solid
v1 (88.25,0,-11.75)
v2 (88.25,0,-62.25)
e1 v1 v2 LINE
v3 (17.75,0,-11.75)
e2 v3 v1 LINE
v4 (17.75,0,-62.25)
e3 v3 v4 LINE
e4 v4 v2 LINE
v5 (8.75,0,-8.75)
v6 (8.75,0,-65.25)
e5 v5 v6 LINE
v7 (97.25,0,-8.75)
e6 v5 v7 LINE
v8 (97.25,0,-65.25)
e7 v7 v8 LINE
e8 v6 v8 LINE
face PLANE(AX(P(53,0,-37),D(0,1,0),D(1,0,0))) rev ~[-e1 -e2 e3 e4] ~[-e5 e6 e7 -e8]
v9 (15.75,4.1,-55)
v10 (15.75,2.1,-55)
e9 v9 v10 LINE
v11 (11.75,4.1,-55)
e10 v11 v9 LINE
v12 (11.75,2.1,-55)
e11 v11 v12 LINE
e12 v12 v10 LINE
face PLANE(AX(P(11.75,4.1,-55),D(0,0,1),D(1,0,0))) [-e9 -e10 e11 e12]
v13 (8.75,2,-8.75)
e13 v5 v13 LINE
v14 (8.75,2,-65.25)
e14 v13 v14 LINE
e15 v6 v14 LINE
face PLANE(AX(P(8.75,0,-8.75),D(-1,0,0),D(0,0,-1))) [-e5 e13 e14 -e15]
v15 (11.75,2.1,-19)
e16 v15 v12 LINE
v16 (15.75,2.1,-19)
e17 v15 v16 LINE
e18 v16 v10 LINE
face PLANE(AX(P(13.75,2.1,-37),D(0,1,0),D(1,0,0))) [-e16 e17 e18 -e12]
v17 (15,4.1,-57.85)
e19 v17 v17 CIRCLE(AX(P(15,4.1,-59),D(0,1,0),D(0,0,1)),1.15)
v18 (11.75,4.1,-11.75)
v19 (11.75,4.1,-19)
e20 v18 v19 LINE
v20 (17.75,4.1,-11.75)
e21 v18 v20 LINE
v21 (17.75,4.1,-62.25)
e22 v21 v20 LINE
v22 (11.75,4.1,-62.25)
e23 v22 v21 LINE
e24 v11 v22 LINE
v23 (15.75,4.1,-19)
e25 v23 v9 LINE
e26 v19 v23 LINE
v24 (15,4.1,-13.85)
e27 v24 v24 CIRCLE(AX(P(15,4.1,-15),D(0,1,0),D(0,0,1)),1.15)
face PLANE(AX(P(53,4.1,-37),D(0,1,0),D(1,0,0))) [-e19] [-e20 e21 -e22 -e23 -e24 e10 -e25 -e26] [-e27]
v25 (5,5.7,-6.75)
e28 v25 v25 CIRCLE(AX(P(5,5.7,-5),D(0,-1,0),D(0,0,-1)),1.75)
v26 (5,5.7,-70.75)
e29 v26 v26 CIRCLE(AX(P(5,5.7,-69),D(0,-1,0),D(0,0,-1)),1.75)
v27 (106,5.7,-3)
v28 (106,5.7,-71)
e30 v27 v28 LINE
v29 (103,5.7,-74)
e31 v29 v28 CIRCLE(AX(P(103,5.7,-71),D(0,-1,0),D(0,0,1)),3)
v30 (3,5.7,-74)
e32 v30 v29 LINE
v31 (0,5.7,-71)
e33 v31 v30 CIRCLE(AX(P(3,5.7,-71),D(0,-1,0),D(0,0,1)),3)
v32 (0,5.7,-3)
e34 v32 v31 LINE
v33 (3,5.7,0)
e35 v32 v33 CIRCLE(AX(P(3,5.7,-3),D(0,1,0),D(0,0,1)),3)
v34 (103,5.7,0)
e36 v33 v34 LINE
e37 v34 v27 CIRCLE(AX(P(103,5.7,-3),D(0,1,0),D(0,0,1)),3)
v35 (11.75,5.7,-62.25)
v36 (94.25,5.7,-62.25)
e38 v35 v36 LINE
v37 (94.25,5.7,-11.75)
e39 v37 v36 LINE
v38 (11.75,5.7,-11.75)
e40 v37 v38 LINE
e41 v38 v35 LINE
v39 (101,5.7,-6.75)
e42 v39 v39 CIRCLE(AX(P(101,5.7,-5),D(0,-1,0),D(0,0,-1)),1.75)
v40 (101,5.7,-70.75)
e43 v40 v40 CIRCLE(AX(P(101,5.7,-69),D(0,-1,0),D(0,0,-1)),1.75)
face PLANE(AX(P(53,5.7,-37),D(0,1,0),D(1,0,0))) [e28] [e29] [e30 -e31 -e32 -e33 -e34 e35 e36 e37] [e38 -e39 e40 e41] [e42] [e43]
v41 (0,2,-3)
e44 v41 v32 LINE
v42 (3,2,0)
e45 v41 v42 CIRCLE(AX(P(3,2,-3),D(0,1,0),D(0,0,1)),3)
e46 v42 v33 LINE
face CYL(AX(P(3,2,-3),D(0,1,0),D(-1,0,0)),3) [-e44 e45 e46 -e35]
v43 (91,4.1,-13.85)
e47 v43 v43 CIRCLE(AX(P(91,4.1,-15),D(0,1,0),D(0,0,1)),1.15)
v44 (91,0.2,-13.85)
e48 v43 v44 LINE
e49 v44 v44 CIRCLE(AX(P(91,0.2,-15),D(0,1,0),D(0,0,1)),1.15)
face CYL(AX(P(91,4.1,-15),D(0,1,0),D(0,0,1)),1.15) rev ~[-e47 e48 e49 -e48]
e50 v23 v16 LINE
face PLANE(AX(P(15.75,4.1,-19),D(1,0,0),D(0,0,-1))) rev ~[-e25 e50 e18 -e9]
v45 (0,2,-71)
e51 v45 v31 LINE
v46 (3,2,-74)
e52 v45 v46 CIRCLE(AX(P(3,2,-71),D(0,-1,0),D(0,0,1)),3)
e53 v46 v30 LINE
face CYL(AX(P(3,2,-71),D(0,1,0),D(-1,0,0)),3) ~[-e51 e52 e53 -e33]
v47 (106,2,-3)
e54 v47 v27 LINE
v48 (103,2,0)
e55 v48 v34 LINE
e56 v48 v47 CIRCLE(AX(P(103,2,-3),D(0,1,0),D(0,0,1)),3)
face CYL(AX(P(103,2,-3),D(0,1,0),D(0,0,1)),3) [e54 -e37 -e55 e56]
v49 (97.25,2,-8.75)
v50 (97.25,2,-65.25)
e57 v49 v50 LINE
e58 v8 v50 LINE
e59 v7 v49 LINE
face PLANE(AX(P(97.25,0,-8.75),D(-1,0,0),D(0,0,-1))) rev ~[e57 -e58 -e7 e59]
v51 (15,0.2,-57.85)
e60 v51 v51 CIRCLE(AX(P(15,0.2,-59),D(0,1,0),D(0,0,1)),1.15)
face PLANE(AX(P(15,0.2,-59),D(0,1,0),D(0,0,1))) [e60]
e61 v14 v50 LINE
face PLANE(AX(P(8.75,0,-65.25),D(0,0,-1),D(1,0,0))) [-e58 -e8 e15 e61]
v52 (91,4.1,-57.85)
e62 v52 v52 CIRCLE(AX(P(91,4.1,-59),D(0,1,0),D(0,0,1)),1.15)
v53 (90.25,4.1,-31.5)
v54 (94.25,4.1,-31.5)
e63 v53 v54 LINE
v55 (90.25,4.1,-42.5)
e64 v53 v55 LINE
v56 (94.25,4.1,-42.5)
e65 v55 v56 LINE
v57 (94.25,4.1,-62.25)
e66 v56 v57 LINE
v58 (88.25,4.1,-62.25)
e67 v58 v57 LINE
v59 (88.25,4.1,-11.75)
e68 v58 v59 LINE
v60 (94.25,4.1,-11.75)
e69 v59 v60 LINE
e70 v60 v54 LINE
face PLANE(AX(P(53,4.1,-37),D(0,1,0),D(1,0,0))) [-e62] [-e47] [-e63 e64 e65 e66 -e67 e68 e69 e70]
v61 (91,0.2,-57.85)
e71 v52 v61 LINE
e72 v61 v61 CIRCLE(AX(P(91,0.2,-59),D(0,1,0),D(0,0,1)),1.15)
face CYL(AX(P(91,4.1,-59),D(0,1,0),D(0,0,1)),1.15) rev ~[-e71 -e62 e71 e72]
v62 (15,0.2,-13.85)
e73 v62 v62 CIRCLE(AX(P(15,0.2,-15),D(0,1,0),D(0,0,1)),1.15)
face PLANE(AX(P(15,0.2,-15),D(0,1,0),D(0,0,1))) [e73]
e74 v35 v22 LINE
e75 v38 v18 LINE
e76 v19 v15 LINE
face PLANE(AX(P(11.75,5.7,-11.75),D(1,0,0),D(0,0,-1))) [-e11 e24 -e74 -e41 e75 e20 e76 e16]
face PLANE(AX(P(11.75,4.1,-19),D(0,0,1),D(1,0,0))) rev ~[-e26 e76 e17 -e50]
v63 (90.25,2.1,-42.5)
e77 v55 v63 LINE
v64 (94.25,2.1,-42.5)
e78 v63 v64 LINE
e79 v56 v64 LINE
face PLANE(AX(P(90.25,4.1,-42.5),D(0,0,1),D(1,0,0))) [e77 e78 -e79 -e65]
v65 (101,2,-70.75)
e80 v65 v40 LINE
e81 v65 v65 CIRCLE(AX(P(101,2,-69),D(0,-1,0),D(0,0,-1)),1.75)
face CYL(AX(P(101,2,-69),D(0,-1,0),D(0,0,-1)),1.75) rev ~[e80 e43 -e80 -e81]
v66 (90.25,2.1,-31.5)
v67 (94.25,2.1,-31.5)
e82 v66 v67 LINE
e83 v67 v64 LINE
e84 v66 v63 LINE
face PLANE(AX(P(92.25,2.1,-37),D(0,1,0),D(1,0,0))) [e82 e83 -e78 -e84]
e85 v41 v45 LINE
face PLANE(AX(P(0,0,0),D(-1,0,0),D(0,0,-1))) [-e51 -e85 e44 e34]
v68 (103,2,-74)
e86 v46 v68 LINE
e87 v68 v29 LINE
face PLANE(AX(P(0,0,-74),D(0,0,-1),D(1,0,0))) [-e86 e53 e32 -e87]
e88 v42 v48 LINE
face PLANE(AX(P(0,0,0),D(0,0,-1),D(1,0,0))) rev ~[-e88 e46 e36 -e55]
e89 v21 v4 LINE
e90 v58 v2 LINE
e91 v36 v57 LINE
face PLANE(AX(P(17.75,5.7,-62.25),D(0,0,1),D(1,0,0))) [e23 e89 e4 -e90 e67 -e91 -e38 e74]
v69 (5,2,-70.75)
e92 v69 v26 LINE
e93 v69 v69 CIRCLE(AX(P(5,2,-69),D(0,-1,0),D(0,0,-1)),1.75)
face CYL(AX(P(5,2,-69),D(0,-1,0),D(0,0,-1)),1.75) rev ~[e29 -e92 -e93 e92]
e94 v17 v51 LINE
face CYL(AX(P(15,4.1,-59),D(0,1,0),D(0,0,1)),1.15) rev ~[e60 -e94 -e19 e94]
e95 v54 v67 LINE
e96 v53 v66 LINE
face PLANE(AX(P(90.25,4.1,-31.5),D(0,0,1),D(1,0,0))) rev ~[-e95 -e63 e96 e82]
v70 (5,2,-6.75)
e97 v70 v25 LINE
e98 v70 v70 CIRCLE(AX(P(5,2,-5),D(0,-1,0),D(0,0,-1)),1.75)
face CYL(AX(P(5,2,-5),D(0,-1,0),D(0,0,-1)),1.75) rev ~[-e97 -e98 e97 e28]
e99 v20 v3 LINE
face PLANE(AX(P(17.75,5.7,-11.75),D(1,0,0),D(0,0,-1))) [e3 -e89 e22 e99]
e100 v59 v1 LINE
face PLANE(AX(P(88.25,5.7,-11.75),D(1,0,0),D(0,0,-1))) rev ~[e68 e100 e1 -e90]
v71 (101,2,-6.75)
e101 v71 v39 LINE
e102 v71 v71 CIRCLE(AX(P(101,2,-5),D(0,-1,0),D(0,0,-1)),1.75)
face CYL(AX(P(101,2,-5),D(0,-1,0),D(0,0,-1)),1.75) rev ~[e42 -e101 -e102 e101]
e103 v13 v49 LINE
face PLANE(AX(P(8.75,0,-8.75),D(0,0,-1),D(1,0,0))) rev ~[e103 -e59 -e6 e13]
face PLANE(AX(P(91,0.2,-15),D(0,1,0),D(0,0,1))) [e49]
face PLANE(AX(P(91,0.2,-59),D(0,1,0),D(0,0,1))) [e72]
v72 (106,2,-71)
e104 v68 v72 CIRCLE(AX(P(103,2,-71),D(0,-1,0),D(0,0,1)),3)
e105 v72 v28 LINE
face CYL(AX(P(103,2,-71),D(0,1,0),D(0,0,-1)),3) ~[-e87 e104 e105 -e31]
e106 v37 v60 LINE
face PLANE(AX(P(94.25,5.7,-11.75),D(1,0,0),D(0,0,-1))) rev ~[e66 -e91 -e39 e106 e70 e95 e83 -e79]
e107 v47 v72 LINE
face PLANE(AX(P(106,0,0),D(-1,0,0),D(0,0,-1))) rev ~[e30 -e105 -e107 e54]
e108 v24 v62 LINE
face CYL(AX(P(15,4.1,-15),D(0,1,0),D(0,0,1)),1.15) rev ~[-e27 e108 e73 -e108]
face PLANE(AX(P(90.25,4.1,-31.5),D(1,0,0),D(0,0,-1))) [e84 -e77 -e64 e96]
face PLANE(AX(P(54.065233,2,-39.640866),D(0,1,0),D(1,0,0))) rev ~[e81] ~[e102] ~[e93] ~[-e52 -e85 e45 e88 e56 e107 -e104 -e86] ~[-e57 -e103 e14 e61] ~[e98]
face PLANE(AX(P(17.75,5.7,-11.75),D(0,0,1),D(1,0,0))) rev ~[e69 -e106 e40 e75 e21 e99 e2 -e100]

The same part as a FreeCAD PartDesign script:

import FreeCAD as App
import Part
import Sketcher

V = App.Vector


def edges_at(feature, points):
    """Names of the edges that pass closest to the given points."""
    edges = feature.Shape.Edges
    near = lambda p: min(range(len(edges)), key=lambda i: edges[i].distToShape(Part.Vertex(*p))[0])
    return sorted({f"Edge{near(p) + 1}" for p in points})


def add_polygon(sketch, points):
    """Adds a closed chain of lines whose ends are joined by coincident constraints."""
    first, n = sketch.GeometryCount, len(points)
    for a, b in zip(points, points[1:] + points[:1]):
        sketch.addGeometry(Part.LineSegment(App.Vector(*a, 0), App.Vector(*b, 0)), False)
    for i in range(n):
        sketch.addConstraint(Sketcher.Constraint("Coincident", first + i, 2, first + (i + 1) % n, 1))

doc = App.newDocument("Part")
body = doc.addObject("PartDesign::Body", "Body")

# Sketch on XZ plane
sketch1 = body.newObject("Sketcher::SketchObject", "Sketch")
sketch1.AttachmentSupport = (doc.getObject("XZ_Plane"), [""])
sketch1.MapMode = "FlatFace"
add_polygon(sketch1, [(0, -74), (0, 0), (106, 0), (106, -74)])  # lines 0-3
sketch1.addConstraint(Sketcher.Constraint("Vertical", 0))
sketch1.addConstraint(Sketcher.Constraint("Horizontal", 1))
sketch1.addConstraint(Sketcher.Constraint("Vertical", 2))
sketch1.addConstraint(Sketcher.Constraint("Horizontal", 3))
sketch1.addConstraint(Sketcher.Constraint("Coincident", 0, 2, -1, 1))
sketch1.addConstraint(Sketcher.Constraint("DistanceX", 1, 1, 1, 2, 106.0))
sketch1.addConstraint(Sketcher.Constraint("DistanceY", 0, 1, 0, 2, 74.0))
pad1 = body.newObject("PartDesign::Pad", "Pad")
pad1.Profile = sketch1
pad1.Length = 5.7
pad1.Reversed = True

# Sketch on XZ plane
sketch2 = body.newObject("Sketcher::SketchObject", "Sketch001")
sketch2.AttachmentSupport = (doc.getObject("XZ_Plane"), [""])
sketch2.MapMode = "FlatFace"
sketch2.AttachmentOffset = App.Placement(V(0, 0, -5.7), App.Rotation())
add_polygon(sketch2, [(18, -62), (18, -12), (88, -12), (88, -62)])  # lines 0-3
sketch2.addConstraint(Sketcher.Constraint("Vertical", 0))
sketch2.addConstraint(Sketcher.Constraint("Horizontal", 1))
sketch2.addConstraint(Sketcher.Constraint("Vertical", 2))
sketch2.addConstraint(Sketcher.Constraint("Horizontal", 3))
sketch2.addConstraint(Sketcher.Constraint("DistanceX", 1, 1, 1, 2, 70.5))
sketch2.addConstraint(Sketcher.Constraint("DistanceY", 0, 1, 0, 2, 50.5))
sketch2.addConstraint(Sketcher.Constraint("DistanceX", -1, 1, 0, 2, 17.75))
sketch2.addConstraint(Sketcher.Constraint("DistanceY", 0, 2, -1, 1, 11.75))
pocket1 = body.newObject("PartDesign::Pocket", "Pocket")
pocket1.Profile = sketch2
pocket1.Type = "ThroughAll"
pocket1.Reversed = True

# Sketch on XZ plane
sketch3 = body.newObject("Sketcher::SketchObject", "Sketch002")
sketch3.AttachmentSupport = (doc.getObject("XZ_Plane"), [""])
sketch3.MapMode = "FlatFace"
sketch3.AttachmentOffset = App.Placement(V(0, 0, -5.7), App.Rotation())
add_polygon(sketch3, [(12, -62), (12, -12), (94, -12), (94, -62)])  # lines 0-3
sketch3.addConstraint(Sketcher.Constraint("Vertical", 0))
sketch3.addConstraint(Sketcher.Constraint("Horizontal", 1))
sketch3.addConstraint(Sketcher.Constraint("Vertical", 2))
sketch3.addConstraint(Sketcher.Constraint("Horizontal", 3))
sketch3.addConstraint(Sketcher.Constraint("DistanceX", 1, 1, 1, 2, 82.5))
sketch3.addConstraint(Sketcher.Constraint("DistanceY", 0, 1, 0, 2, 50.5))
sketch3.addConstraint(Sketcher.Constraint("DistanceX", -1, 1, 0, 2, 11.75))
sketch3.addConstraint(Sketcher.Constraint("DistanceY", 0, 2, -1, 1, 11.75))
pocket2 = body.newObject("PartDesign::Pocket", "Pocket001")
pocket2.Profile = sketch3
pocket2.Length = 1.6
pocket2.Reversed = True

# Sketch on XZ plane
sketch4 = body.newObject("Sketcher::SketchObject", "Sketch003")
sketch4.AttachmentSupport = (doc.getObject("XZ_Plane"), [""])
sketch4.MapMode = "FlatFace"
sketch4.AttachmentOffset = App.Placement(V(0, 0, -4.1), App.Rotation())
add_polygon(sketch4, [(90.2, -42.5), (90.2, -31.5), (94.2, -31.5), (94.2, -42.5)])  # lines 0-3
add_polygon(sketch4, [(11.8, -55), (11.8, -19), (15.8, -19), (15.8, -55)])  # lines 4-7
sketch4.addConstraint(Sketcher.Constraint("Vertical", 0))
sketch4.addConstraint(Sketcher.Constraint("Horizontal", 1))
sketch4.addConstraint(Sketcher.Constraint("Vertical", 2))
sketch4.addConstraint(Sketcher.Constraint("Horizontal", 3))
sketch4.addConstraint(Sketcher.Constraint("Vertical", 4))
sketch4.addConstraint(Sketcher.Constraint("Horizontal", 5))
sketch4.addConstraint(Sketcher.Constraint("Vertical", 6))
sketch4.addConstraint(Sketcher.Constraint("Horizontal", 7))
sketch4.addConstraint(Sketcher.Constraint("Equal", 3, 5))
sketch4.addConstraint(Sketcher.Constraint("DistanceX", 1, 1, 1, 2, 4.0))
sketch4.addConstraint(Sketcher.Constraint("DistanceY", 0, 1, 0, 2, 11.0))
sketch4.addConstraint(Sketcher.Constraint("DistanceY", 4, 1, 4, 2, 36.0))
sketch4.addConstraint(Sketcher.Constraint("DistanceY", 4, 2, -1, 1, 19.0))
sketch4.addConstraint(Sketcher.Constraint("DistanceY", 0, 2, -1, 1, 31.5))
sketch4.addConstraint(Sketcher.Constraint("DistanceX", 4, 2, 0, 2, 78.5))
sketch4.addConstraint(Sketcher.Constraint("DistanceX", -1, 1, 0, 2, 90.25))
pocket3 = body.newObject("PartDesign::Pocket", "Pocket002")
pocket3.Profile = sketch4
pocket3.Length = 2
pocket3.Reversed = True

# Sketch on XZ plane
sketch5 = body.newObject("Sketcher::SketchObject", "Sketch004")
sketch5.AttachmentSupport = (doc.getObject("XZ_Plane"), [""])
sketch5.MapMode = "FlatFace"
sketch5.AttachmentOffset = App.Placement(V(0, 0, -4.1), App.Rotation())
sketch5.addGeometry(Part.Circle(V(15, -59, 0), V(0, 0, 1), 1.1), False)
sketch5.addGeometry(Part.Circle(V(91, -59, 0), V(0, 0, 1), 1.1), False)
sketch5.addGeometry(Part.Circle(V(91, -15, 0), V(0, 0, 1), 1.1), False)
sketch5.addGeometry(Part.Circle(V(15, -15, 0), V(0, 0, 1), 1.1), False)
sketch5.addConstraint(Sketcher.Constraint("Equal", 0, 1))
sketch5.addConstraint(Sketcher.Constraint("Equal", 1, 2))
sketch5.addConstraint(Sketcher.Constraint("Equal", 2, 3))
sketch5.addConstraint(Sketcher.Constraint("Horizontal", 0, 3, 1, 3))
sketch5.addConstraint(Sketcher.Constraint("Horizontal", 2, 3, 3, 3))
sketch5.addConstraint(Sketcher.Constraint("Vertical", 1, 3, 2, 3))
sketch5.addConstraint(Sketcher.Constraint("Vertical", 0, 3, 3, 3))
sketch5.addConstraint(Sketcher.Constraint("Diameter", 0, 2.3))
sketch5.addConstraint(Sketcher.Constraint("DistanceX", -1, 1, 0, 3, 15.0))
sketch5.addConstraint(Sketcher.Constraint("DistanceY", 0, 3, -1, 1, 59.0))
sketch5.addConstraint(Sketcher.Constraint("DistanceX", -1, 1, 1, 3, 91.0))
sketch5.addConstraint(Sketcher.Constraint("DistanceY", 2, 3, -1, 1, 15.0))
pocket4 = body.newObject("PartDesign::Pocket", "Pocket003")
pocket4.Profile = sketch5
pocket4.Length = 3.9
pocket4.Reversed = True

# Sketch on XZ plane
sketch6 = body.newObject("Sketcher::SketchObject", "Sketch005")
sketch6.AttachmentSupport = (doc.getObject("XZ_Plane"), [""])
sketch6.MapMode = "FlatFace"
add_polygon(sketch6, [(-12, -84), (-12, 5), (120, 5), (120, -84)])  # lines 0-3
add_polygon(sketch6, [(97, -9), (9, -9), (9, -65), (97, -65)])  # lines 4-7
sketch6.addConstraint(Sketcher.Constraint("Vertical", 0))
sketch6.addConstraint(Sketcher.Constraint("Horizontal", 1))
sketch6.addConstraint(Sketcher.Constraint("Vertical", 2))
sketch6.addConstraint(Sketcher.Constraint("Horizontal", 3))
sketch6.addConstraint(Sketcher.Constraint("Horizontal", 4))
sketch6.addConstraint(Sketcher.Constraint("Vertical", 5))
sketch6.addConstraint(Sketcher.Constraint("Horizontal", 6))
sketch6.addConstraint(Sketcher.Constraint("Vertical", 7))
sketch6.addConstraint(Sketcher.Constraint("DistanceX", 4, 2, 4, 1, 88.5))
sketch6.addConstraint(Sketcher.Constraint("DistanceY", 5, 2, 5, 1, 56.5))
sketch6.addConstraint(Sketcher.Constraint("DistanceX", -1, 1, 4, 2, 8.75))
sketch6.addConstraint(Sketcher.Constraint("DistanceY", 4, 2, -1, 1, 8.75))
sketch6.addConstraint(Sketcher.Constraint("DistanceX", 1, 1, 1, 2, 131.13504))
sketch6.addConstraint(Sketcher.Constraint("DistanceY", 0, 1, 0, 2, 88.560038))
sketch6.addConstraint(Sketcher.Constraint("DistanceX", 0, 2, -1, 1, 11.502287))
sketch6.addConstraint(Sketcher.Constraint("DistanceY", -1, 1, 0, 2, 4.639153))
pocket5 = body.newObject("PartDesign::Pocket", "Pocket004")
pocket5.Profile = sketch6
pocket5.Length = 2

# Sketch on XZ plane
sketch7 = body.newObject("Sketcher::SketchObject", "Sketch006")
sketch7.AttachmentSupport = (doc.getObject("XZ_Plane"), [""])
sketch7.MapMode = "FlatFace"
sketch7.AttachmentOffset = App.Placement(V(0, 0, -2), App.Rotation())
sketch7.addGeometry(Part.Circle(V(5, -5, 0), V(0, 0, 1), 1.8), False)
sketch7.addGeometry(Part.Circle(V(101, -5, 0), V(0, 0, 1), 1.8), False)
sketch7.addGeometry(Part.Circle(V(101, -69, 0), V(0, 0, 1), 1.8), False)
sketch7.addGeometry(Part.Circle(V(5, -69, 0), V(0, 0, 1), 1.8), False)
sketch7.addConstraint(Sketcher.Constraint("Equal", 0, 1))
sketch7.addConstraint(Sketcher.Constraint("Equal", 1, 2))
sketch7.addConstraint(Sketcher.Constraint("Equal", 2, 3))
sketch7.addConstraint(Sketcher.Constraint("Horizontal", 0, 3, 1, 3))
sketch7.addConstraint(Sketcher.Constraint("Horizontal", 2, 3, 3, 3))
sketch7.addConstraint(Sketcher.Constraint("Vertical", 1, 3, 2, 3))
sketch7.addConstraint(Sketcher.Constraint("Vertical", 0, 3, 3, 3))
sketch7.addConstraint(Sketcher.Constraint("Diameter", 0, 3.5))
sketch7.addConstraint(Sketcher.Constraint("DistanceX", -1, 1, 0, 3, 5.0))
sketch7.addConstraint(Sketcher.Constraint("DistanceY", 0, 3, -1, 1, 5.0))
sketch7.addConstraint(Sketcher.Constraint("DistanceX", -1, 1, 1, 3, 101.0))
sketch7.addConstraint(Sketcher.Constraint("DistanceY", 2, 3, -1, 1, 69.0))
pocket6 = body.newObject("PartDesign::Pocket", "Pocket005")
pocket6.Profile = sketch7
pocket6.Type = "ThroughAll"
doc.recompute()

fillet = body.newObject("PartDesign::Fillet", "Fillet")
fillet.Base = (pocket6, edges_at(pocket6, [
    (0, 3.85, -74),
    (106, 3.85, -74),
    (106, 3.85, 0),
    (0, 3.85, 0),
]))
fillet.Radius = 3

doc.recompute()
